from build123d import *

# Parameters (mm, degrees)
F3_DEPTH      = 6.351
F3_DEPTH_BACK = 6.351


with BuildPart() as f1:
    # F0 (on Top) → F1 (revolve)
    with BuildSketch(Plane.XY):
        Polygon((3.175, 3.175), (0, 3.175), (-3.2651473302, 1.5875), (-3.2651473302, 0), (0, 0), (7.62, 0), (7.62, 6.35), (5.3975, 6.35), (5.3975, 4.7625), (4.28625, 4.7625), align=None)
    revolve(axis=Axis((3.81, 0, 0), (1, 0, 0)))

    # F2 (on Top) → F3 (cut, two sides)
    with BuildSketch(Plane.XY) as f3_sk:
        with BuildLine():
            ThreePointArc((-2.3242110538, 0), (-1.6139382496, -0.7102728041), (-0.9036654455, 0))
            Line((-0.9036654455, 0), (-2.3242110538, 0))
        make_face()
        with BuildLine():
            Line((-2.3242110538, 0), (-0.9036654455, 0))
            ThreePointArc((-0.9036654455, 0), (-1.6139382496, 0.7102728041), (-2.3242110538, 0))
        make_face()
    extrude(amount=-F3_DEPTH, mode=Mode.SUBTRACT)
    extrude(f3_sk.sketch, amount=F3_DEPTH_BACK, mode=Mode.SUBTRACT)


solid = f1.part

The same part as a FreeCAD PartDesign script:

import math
import FreeCAD as App
import Part
import Sketcher

V = App.Vector
Q = App.Units.Quantity

doc = App.newDocument("Part")
body = doc.addObject("PartDesign::Body", "Body")

# Sketch on XY plane
sketch1 = body.newObject("Sketcher::SketchObject", "Sketch")
sketch1.AttachmentSupport = (doc.getObject("XY_Plane"), [""])
sketch1.MapMode = "FlatFace"
sketch1.addGeometry(Part.LineSegment(V(3.2, 3.2, 0), V(0, 3.2, 0)), False)
sketch1.addGeometry(Part.LineSegment(V(0, 3.2, 0), V(-3.3, 1.6, 0)), False)
sketch1.addGeometry(Part.LineSegment(V(-3.3, 1.6, 0), V(-3.3, 0, 0)), False)
sketch1.addGeometry(Part.LineSegment(V(-3.3, 0, 0), V(7.6, 0, 0)), False)
sketch1.addGeometry(Part.LineSegment(V(7.6, 0, 0), V(7.6, 6.3, 0)), False)
sketch1.addGeometry(Part.LineSegment(V(7.6, 6.3, 0), V(5.4, 6.3, 0)), False)
sketch1.addGeometry(Part.LineSegment(V(5.4, 6.3, 0), V(5.4, 4.8, 0)), False)
sketch1.addGeometry(Part.LineSegment(V(5.4, 4.8, 0), V(4.3, 4.8, 0)), False)
sketch1.addGeometry(Part.LineSegment(V(4.3, 4.8, 0), V(3.2, 3.2, 0)), False)
sketch1.addConstraint(Sketcher.Constraint("Coincident", 0, 2, 1, 1))
sketch1.addConstraint(Sketcher.Constraint("Coincident", 1, 2, 2, 1))
sketch1.addConstraint(Sketcher.Constraint("Coincident", 2, 2, 3, 1))
sketch1.addConstraint(Sketcher.Constraint("Coincident", 3, 2, 4, 1))
sketch1.addConstraint(Sketcher.Constraint("Coincident", 4, 2, 5, 1))
sketch1.addConstraint(Sketcher.Constraint("Coincident", 5, 2, 6, 1))
sketch1.addConstraint(Sketcher.Constraint("Coincident", 6, 2, 7, 1))
sketch1.addConstraint(Sketcher.Constraint("Coincident", 7, 2, 8, 1))
sketch1.addConstraint(Sketcher.Constraint("Coincident", 8, 2, 0, 1))
sketch1.addConstraint(Sketcher.Constraint("Horizontal", 0))
sketch1.addConstraint(Sketcher.Constraint("Vertical", 2))
sketch1.addConstraint(Sketcher.Constraint("Horizontal", 3))
sketch1.addConstraint(Sketcher.Constraint("Vertical", 4))
sketch1.addConstraint(Sketcher.Constraint("Horizontal", 5))
sketch1.addConstraint(Sketcher.Constraint("Vertical", 6))
sketch1.addConstraint(Sketcher.Constraint("Horizontal", 7))
sketch1.addConstraint(Sketcher.Constraint("PointOnObject", 0, 2, -2))
sketch1.addConstraint(Sketcher.Constraint("PointOnObject", 2, 2, -1))
sketch1.addConstraint(Sketcher.Constraint("Equal", 2, 6))
sketch1.addConstraint(Sketcher.Constraint("DistanceY", 4, 1, 4, 2, Q("0.25 in")))
sketch1.addConstraint(Sketcher.Constraint("DistanceX", -1, 1, 3, 2, Q("0.3 in")))
sketch1.addConstraint(Sketcher.Constraint("DistanceX", 0, 2, 0, 1, Q("0.125 in")))
sketch1.addConstraint(Sketcher.Constraint("DistanceY", 2, 2, 2, 1, Q("0.0625 in")))
sketch1.addConstraint(Sketcher.Constraint("DistanceX", 5, 2, 5, 1, Q("0.0875 in")))
sketch1.addConstraint(Sketcher.Constraint("DistanceY", -1, 1, 0, 2, Q("0.125 in")))
sketch1.addConstraint(Sketcher.Constraint("DistanceX", 7, 2, 7, 1, Q("1.11125 mm")))
sketch1.addConstraint(Sketcher.Constraint("Distance", 1, Q("3.630612 mm")))
revolution = body.newObject("PartDesign::Revolution", "Revolution")
revolution.Profile = sketch1
revolution.ReferenceAxis = (sketch1, ["H_Axis"])
revolution.Angle = 360

# Sketch on XY plane
sketch2 = body.newObject("Sketcher::SketchObject", "Sketch001")
sketch2.AttachmentSupport = (doc.getObject("XY_Plane"), [""])
sketch2.MapMode = "FlatFace"
sketch2.addGeometry(Part.ArcOfCircle(Part.Circle(V(-1.6, 0, 0), V(0, 0, 1), 0.7), math.radians(180), math.radians(360)), False)
sketch2.addGeometry(Part.ArcOfCircle(Part.Circle(V(-1.6, 0, 0), V(0, 0, 1), 0.7), math.radians(0), math.radians(180)), False)
sketch2.addConstraint(Sketcher.Constraint("Tangent", 0, 1, 1, 2))
sketch2.addConstraint(Sketcher.Constraint("Coincident", 1, 1, 0, 2))
sketch2.addConstraint(Sketcher.Constraint("PointOnObject", 0, 3, -1))
sketch2.addConstraint(Sketcher.Constraint("PointOnObject", 0, 1, -1))
sketch2.addConstraint(Sketcher.Constraint("PointOnObject", 1, 1, -1))
sketch2.addConstraint(Sketcher.Constraint("Radius", 0, Q("0.710273 mm")))
sketch2.addConstraint(Sketcher.Constraint("DistanceX", 0, 3, -1, 1, Q("1.613938 mm")))
pocket1 = body.newObject("PartDesign::Pocket", "Pocket")
pocket1.Profile = sketch2
pocket1.Type = "ThroughAll"
pocket1.Midplane = True

doc.recompute()
